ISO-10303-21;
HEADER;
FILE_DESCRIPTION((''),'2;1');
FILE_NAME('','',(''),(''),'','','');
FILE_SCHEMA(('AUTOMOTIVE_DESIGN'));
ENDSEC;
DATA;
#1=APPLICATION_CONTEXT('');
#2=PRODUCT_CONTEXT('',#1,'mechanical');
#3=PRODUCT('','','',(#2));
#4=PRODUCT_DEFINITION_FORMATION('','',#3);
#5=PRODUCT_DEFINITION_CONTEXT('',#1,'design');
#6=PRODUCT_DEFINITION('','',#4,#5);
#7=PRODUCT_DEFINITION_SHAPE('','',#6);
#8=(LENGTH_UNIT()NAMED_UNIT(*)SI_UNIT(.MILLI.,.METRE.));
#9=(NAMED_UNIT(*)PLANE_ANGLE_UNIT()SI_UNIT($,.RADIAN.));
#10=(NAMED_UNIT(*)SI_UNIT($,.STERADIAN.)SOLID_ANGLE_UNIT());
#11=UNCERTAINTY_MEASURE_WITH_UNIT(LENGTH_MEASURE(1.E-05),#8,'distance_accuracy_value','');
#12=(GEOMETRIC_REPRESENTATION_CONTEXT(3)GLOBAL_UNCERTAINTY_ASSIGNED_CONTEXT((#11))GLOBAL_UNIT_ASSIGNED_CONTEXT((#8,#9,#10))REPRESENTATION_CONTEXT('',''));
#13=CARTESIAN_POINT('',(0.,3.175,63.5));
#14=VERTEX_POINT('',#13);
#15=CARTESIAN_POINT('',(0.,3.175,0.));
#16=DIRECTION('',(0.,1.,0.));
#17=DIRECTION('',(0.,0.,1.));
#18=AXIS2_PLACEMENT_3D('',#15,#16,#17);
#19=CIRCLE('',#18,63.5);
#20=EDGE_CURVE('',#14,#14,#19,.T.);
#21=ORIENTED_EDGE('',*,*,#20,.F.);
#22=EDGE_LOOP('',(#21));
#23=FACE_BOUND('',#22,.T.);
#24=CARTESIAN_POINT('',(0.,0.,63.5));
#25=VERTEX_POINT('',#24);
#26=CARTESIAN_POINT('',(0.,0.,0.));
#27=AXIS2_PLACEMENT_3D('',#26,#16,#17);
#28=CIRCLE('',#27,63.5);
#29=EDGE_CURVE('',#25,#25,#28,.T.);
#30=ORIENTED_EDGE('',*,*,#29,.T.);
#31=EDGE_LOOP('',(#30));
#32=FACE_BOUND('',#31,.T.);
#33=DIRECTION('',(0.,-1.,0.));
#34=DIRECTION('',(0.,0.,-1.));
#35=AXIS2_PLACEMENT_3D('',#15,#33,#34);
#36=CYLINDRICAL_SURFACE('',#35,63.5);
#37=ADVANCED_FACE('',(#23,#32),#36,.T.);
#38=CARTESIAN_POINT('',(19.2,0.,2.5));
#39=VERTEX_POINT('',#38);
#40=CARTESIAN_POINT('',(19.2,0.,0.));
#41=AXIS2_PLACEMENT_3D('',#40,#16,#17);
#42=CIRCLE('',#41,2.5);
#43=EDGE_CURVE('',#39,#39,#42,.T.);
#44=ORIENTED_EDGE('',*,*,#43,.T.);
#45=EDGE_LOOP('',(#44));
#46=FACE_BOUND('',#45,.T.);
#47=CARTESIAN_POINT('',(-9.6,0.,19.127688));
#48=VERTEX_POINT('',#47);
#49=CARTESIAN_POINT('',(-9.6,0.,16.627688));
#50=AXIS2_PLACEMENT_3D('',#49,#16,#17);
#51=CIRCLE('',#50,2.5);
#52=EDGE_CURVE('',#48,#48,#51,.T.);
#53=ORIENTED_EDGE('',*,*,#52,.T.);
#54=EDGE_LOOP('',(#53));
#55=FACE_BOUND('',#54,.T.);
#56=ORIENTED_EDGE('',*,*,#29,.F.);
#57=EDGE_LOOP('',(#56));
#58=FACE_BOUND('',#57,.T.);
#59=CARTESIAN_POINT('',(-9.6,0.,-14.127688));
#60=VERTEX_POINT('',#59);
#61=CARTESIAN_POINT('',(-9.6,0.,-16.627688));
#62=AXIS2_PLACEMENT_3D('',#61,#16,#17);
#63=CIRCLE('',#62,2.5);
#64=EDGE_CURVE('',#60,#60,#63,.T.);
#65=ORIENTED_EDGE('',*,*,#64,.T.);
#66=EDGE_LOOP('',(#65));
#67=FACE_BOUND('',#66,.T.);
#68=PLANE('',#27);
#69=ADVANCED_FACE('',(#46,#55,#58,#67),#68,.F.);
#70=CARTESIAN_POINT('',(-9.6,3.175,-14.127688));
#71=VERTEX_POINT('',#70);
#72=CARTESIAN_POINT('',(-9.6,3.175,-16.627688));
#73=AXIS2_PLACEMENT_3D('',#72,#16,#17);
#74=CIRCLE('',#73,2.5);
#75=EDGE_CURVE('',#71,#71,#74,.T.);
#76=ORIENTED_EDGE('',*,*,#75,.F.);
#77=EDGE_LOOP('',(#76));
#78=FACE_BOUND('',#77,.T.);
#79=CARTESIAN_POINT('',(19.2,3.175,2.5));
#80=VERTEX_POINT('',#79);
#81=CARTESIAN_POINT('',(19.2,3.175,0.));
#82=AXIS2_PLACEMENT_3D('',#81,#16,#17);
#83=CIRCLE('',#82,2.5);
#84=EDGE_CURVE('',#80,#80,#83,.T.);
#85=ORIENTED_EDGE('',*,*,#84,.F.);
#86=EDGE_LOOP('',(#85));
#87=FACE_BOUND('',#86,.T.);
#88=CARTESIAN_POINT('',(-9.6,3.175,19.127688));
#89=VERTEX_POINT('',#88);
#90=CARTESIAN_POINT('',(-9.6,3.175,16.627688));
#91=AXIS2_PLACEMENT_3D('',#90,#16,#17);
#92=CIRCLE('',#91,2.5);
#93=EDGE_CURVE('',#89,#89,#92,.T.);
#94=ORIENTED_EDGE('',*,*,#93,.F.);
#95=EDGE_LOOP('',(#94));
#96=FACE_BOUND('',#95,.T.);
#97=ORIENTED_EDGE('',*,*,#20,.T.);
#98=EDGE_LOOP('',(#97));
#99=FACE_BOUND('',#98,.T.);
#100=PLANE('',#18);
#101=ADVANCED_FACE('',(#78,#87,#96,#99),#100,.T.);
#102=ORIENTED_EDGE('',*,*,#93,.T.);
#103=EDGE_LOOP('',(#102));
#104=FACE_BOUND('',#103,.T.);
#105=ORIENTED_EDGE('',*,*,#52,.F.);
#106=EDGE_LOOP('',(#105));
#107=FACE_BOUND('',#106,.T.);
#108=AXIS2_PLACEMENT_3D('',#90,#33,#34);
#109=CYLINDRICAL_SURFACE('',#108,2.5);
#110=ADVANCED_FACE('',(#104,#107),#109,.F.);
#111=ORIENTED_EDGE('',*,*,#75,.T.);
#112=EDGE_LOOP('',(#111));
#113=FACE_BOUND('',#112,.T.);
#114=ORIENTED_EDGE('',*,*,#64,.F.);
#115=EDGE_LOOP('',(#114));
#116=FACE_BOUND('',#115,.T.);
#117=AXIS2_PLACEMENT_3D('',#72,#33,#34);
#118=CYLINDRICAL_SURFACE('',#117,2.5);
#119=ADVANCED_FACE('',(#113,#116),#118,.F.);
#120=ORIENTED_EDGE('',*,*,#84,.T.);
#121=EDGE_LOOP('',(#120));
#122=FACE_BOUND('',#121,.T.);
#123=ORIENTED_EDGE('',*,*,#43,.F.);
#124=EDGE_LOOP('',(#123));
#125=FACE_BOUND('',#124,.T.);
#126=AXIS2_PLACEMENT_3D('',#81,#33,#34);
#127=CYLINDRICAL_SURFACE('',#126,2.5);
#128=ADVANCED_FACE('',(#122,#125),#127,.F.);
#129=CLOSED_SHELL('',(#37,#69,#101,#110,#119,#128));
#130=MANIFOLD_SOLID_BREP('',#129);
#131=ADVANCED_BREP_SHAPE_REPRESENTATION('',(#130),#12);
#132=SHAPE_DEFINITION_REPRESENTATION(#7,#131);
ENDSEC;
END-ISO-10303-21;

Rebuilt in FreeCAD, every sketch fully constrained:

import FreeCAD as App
import Part
import Sketcher
from FreeCAD import Vector
Q = App.Units.Quantity

doc = App.newDocument("Part")
body = doc.addObject("PartDesign::Body", "Body")

sketch1 = doc.addObject("Sketcher::SketchObject", "Sketch")
body.addObject(sketch1)
sketch1.AttachmentSupport = (doc.XZ_Plane, [""])
sketch1.MapMode = "FlatFace"
sketch1.addGeometry(Part.Circle(Vector(0, 0, 0), Vector(0, 0, 1), 63.5), False)
sketch1.addGeometry(Part.Circle(Vector(-9.6, 16.6, 0), Vector(0, 0, 1), 2.5), False)
sketch1.addGeometry(Part.Circle(Vector(-9.6, -16.6, 0), Vector(0, 0, 1), 2.5), False)
sketch1.addGeometry(Part.Circle(Vector(19.2, 0, 0), Vector(0, 0, 1), 2.5), False)
sketch1.addConstraint(Sketcher.Constraint("Coincident", 0, 3, -1, 1))
sketch1.addConstraint(Sketcher.Constraint("Equal", 1, 2))
sketch1.addConstraint(Sketcher.Constraint("Equal", 2, 3))
sketch1.addConstraint(Sketcher.Constraint("Symmetric", 1, 3, 2, 3, -1))
sketch1.addConstraint(Sketcher.Constraint("PointOnObject", 3, 3, -1))
sketch1.addConstraint(Sketcher.Constraint("Diameter", 0, Q("5 in")))
sketch1.addConstraint(Sketcher.Constraint("Diameter", 1, Q("5 mm")))
sketch1.addConstraint(Sketcher.Constraint("DistanceX", 1, 3, -1, 1, Q("9.6 mm")))
sketch1.addConstraint(Sketcher.Constraint("DistanceX", -1, 1, 3, 3, Q("19.2 mm")))
sketch1.addConstraint(Sketcher.Constraint("DistanceY", -1, 1, 1, 3, Q("16.627688 mm")))
pad1 = doc.addObject("PartDesign::Pad", "Pad")
body.addObject(pad1)
pad1.Profile = sketch1
pad1.Length = Q("0.125 in")
pad1.Reversed = True

doc.recompute()
